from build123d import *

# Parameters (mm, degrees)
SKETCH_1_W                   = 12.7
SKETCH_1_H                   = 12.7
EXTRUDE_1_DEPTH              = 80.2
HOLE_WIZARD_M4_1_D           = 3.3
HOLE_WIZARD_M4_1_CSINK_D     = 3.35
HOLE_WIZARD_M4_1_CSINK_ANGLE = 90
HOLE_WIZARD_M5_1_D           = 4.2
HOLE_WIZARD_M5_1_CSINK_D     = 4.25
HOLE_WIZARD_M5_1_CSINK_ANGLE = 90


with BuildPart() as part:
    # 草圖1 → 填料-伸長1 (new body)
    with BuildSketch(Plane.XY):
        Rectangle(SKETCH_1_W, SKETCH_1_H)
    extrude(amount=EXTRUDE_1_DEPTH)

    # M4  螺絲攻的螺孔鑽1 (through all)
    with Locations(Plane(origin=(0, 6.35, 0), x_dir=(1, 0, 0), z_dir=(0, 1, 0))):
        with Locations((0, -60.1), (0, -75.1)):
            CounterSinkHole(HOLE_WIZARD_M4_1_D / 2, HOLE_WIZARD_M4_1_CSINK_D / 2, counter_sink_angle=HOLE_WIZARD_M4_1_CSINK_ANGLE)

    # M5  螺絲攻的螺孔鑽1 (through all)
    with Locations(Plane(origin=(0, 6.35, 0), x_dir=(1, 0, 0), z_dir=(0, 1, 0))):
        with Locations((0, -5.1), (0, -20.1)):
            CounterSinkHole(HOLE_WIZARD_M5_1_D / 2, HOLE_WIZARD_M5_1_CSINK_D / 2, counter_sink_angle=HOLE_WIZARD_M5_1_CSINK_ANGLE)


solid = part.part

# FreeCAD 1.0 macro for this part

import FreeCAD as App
import Part
import Sketcher

V = App.Vector
Q = App.Units.Quantity


def add_polygon(sketch, points):
    """Adds a closed chain of lines whose ends are joined by coincident constraints."""
    first, n = sketch.GeometryCount, len(points)
    for a, b in zip(points, points[1:] + points[:1]):
        sketch.addGeometry(Part.LineSegment(App.Vector(*a, 0), App.Vector(*b, 0)), False)
    for i in range(n):
        sketch.addConstraint(Sketcher.Constraint("Coincident", first + i, 2, first + (i + 1) % n, 1))

doc = App.newDocument("Part")
params = doc.addObject("Spreadsheet::Sheet", "Params")
for row, (alias, value) in enumerate([
    ("sketch1_width", "12.7 mm"),
    ("pad1_length", "80.2 mm"),
    ("sketch2_diameter", "3.3 mm"),
    ("hole_diameter", "3.3 mm"),
    ("hole_csink_diameter", "3.35 mm"),
    ("sketch3_diameter", "4.2 mm"),
    ("hole2_diameter", "4.2 mm"),
    ("hole2_csink_diameter", "4.25 mm"),
], start=1):
    params.set(f"A{row}", alias)
    params.set(f"B{row}", "=" + value)
    params.setAlias(f"B{row}", alias)

body = doc.addObject("PartDesign::Body", "Body")

# Sketch on XY plane
sketch1 = body.newObject("Sketcher::SketchObject", "Sketch")
sketch1.AttachmentSupport = (doc.getObject("XY_Plane"), [""])
sketch1.MapMode = "FlatFace"
add_polygon(sketch1, [(-6, 6), (-6, -6), (6, -6), (6, 6)])  # lines 0-3
sketch1.addConstraint([
    Sketcher.Constraint("Vertical", 0),
    Sketcher.Constraint("Horizontal", 1),
    Sketcher.Constraint("Vertical", 2),
    Sketcher.Constraint("Horizontal", 3),
    Sketcher.Constraint("Symmetric", 0, 2, 2, 2, -1, 1),
    Sketcher.Constraint("Equal", 3, 0),
    Sketcher.Constraint("DistanceX", 1, 1, 1, 2, Q("12.7 mm")),
])
sketch1.setExpression("Constraints[10]", "Params.sketch1_width")
pad1 = body.newObject("PartDesign::Pad", "Pad")
pad1.Profile = sketch1
pad1.setExpression("Length", "Params.pad1_length")

# Sketch on XZ plane
sketch2 = body.newObject("Sketcher::SketchObject", "Sketch001")
sketch2.AttachmentSupport = (doc.getObject("XZ_Plane"), [""])
sketch2.MapMode = "FlatFace"
sketch2.AttachmentOffset = App.Placement(V(0, 0, -6.35), App.Rotation())
sketch2.addGeometry([
    Part.Circle(V(0, 60.1, 0), V(0, 0, 1), 1.6),
    Part.Circle(V(0, 75.1, 0), V(0, 0, 1), 1.6),
], False)
sketch2.addConstraint([
    Sketcher.Constraint("Equal", 0, 1),
    Sketcher.Constraint("PointOnObject", 0, 3, -2),
    Sketcher.Constraint("PointOnObject", 1, 3, -2),
    Sketcher.Constraint("Diameter", 0, Q("3.3 mm")),
    Sketcher.Constraint("DistanceY", 0, 3, 1, 3, Q("15 mm")),
    Sketcher.Constraint("DistanceY", -1, 1, 0, 3, Q("60.1 mm")),
])
sketch2.setExpression("Constraints[3]", "Params.sketch2_diameter")
doc.recompute()
hole = body.newObject("PartDesign::Hole", "Hole")
hole.Profile = sketch2
hole.ThreadType = "None"
hole.setExpression("Diameter", "Params.hole_diameter")
hole.DepthType = "ThroughAll"
hole.HoleCutType = "Countersink"
hole.setExpression("HoleCutDiameter", "Params.hole_csink_diameter")
hole.HoleCutCountersinkAngle = 90
hole.Reversed = True

# Sketch on XZ plane
sketch3 = body.newObject("Sketcher::SketchObject", "Sketch002")
sketch3.AttachmentSupport = (doc.getObject("XZ_Plane"), [""])
sketch3.MapMode = "FlatFace"
sketch3.AttachmentOffset = App.Placement(V(0, 0, -6.35), App.Rotation())
sketch3.addGeometry([
    Part.Circle(V(0, 5.1, 0), V(0, 0, 1), 2.1),
    Part.Circle(V(0, 20.1, 0), V(0, 0, 1), 2.1),
], False)
sketch3.addConstraint([
    Sketcher.Constraint("Equal", 0, 1),
    Sketcher.Constraint("PointOnObject", 0, 3, -2),
    Sketcher.Constraint("PointOnObject", 1, 3, -2),
    Sketcher.Constraint("Diameter", 0, Q("4.2 mm")),
    Sketcher.Constraint("DistanceY", 0, 3, 1, 3, Q("15 mm")),
    Sketcher.Constraint("DistanceY", -1, 1, 0, 3, Q("5.1 mm")),
])
sketch3.setExpression("Constraints[3]", "Params.sketch3_diameter")
doc.recompute()
hole2 = body.newObject("PartDesign::Hole", "Hole001")
hole2.Profile = sketch3
hole2.ThreadType = "None"
hole2.setExpression("Diameter", "Params.hole2_diameter")
hole2.DepthType = "ThroughAll"
hole2.HoleCutType = "Countersink"
hole2.setExpression("HoleCutDiameter", "Params.hole2_csink_diameter")
hole2.HoleCutCountersinkAngle = 90
hole2.Reversed = True

doc.recompute()
